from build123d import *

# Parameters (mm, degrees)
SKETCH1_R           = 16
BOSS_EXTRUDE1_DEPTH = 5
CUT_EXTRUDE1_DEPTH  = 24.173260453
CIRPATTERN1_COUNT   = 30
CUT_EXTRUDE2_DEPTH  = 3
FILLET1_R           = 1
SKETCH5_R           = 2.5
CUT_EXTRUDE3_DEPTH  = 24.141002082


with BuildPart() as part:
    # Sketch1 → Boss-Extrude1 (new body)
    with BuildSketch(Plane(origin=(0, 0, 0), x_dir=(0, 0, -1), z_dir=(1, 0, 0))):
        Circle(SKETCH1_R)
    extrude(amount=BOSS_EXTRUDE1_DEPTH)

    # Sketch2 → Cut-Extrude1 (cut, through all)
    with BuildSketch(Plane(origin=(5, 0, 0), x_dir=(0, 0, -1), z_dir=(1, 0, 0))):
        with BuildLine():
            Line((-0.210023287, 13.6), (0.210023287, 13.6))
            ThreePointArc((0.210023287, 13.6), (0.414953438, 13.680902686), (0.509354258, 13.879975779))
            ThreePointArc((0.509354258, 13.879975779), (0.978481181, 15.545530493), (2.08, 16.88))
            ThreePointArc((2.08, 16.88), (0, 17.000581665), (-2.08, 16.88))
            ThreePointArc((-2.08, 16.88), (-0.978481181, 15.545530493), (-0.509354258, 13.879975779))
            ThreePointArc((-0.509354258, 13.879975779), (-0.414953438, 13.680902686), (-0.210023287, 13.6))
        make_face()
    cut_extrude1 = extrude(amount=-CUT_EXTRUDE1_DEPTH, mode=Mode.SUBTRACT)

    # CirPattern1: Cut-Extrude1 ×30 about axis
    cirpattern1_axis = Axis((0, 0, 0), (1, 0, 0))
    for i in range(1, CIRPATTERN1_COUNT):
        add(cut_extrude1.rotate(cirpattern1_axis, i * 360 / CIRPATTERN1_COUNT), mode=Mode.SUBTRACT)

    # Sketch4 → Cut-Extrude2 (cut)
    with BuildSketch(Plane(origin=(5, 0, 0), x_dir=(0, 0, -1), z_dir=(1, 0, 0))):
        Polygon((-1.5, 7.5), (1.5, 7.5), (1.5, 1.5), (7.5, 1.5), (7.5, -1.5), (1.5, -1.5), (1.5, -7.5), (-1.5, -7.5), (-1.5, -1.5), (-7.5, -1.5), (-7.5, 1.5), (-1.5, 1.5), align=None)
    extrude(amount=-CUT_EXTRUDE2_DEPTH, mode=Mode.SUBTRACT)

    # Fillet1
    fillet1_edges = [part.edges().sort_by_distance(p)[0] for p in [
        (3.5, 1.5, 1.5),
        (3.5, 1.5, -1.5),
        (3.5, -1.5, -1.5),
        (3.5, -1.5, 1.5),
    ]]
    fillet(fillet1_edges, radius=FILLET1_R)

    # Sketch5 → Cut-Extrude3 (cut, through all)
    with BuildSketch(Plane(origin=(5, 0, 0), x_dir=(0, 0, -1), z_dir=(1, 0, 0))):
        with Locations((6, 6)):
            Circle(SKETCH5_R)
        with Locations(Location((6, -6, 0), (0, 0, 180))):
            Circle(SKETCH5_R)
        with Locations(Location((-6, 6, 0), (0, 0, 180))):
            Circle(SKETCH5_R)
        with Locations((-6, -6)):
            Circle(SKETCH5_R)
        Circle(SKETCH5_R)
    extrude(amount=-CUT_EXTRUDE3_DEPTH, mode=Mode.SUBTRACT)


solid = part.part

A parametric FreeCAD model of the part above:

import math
import FreeCAD as App
import Part
import Sketcher

V = App.Vector


def edges_at(feature, points):
    """Names of the edges that pass closest to the given points."""
    edges = feature.Shape.Edges
    near = lambda p: min(range(len(edges)), key=lambda i: edges[i].distToShape(Part.Vertex(*p))[0])
    return sorted({f"Edge{near(p) + 1}" for p in points})

doc = App.newDocument("Part")
body = doc.addObject("PartDesign::Body", "Body")

# Sketch on YZ plane
sketch1 = doc.addObject("Sketcher::SketchObject", "Sketch")
body.addObject(sketch1)
sketch1.AttachmentSupport = (doc.YZ_Plane, [""])
sketch1.MapMode = "FlatFace"
sketch1.addGeometry(Part.Circle(V(0, 0, 0), V(0, 0, 1), 16), False)
sketch1.addConstraint(Sketcher.Constraint("Coincident", 0, 3, -1, 1))
sketch1.addConstraint(Sketcher.Constraint("Diameter", 0, 32.0))
pad1 = doc.addObject("PartDesign::Pad", "Pad")
body.addObject(pad1)
pad1.Profile = sketch1
pad1.Length = 5

# Sketch on YZ plane
sketch2 = doc.addObject("Sketcher::SketchObject", "Sketch001")
body.addObject(sketch2)
sketch2.AttachmentSupport = (doc.YZ_Plane, [""])
sketch2.MapMode = "FlatFace"
sketch2.AttachmentOffset = App.Placement(V(0, 0, 5), App.Rotation())
sketch2.addGeometry(Part.LineSegment(V(13.6, 0.210023, 0), V(13.6, -0.210023, 0)), False)
sketch2.addGeometry(Part.ArcOfCircle(Part.Circle(V(13.9, -0.210023, 0), V(0, 0, 1), 0.3), math.radians(180), math.radians(266.17281)), False)
sketch2.addGeometry(Part.ArcOfCircle(Part.Circle(V(13.6, -4.694557, 0), V(0, 0, 1), 4.194557), math.radians(38.559086), math.radians(86.17281)), False)
sketch2.addGeometry(Part.ArcOfCircle(Part.Circle(V(-0.999418, 0, 0), V(0, 0, 1), 18), math.radians(-6.63567), math.radians(6.63567)), False)
sketch2.addGeometry(Part.ArcOfCircle(Part.Circle(V(13.6, 4.694557, 0), V(0, 0, 1), 4.194557), math.radians(-86.17281), math.radians(-38.559086)), False)
sketch2.addGeometry(Part.ArcOfCircle(Part.Circle(V(13.9, 0.210023, 0), V(0, 0, 1), 0.3), math.radians(93.82719), math.radians(180)), False)
sketch2.addConstraint(Sketcher.Constraint("Tangent", 0, 2, 1, 1))
sketch2.addConstraint(Sketcher.Constraint("Tangent", 1, 2, 2, 2))
sketch2.addConstraint(Sketcher.Constraint("Coincident", 2, 1, 3, 1))
sketch2.addConstraint(Sketcher.Constraint("Coincident", 3, 2, 4, 2))
sketch2.addConstraint(Sketcher.Constraint("Tangent", 4, 1, 5, 1))
sketch2.addConstraint(Sketcher.Constraint("Tangent", 5, 2, 0, 1))
sketch2.addConstraint(Sketcher.Constraint("Vertical", 0))
sketch2.addConstraint(Sketcher.Constraint("Equal", 2, 4))
sketch2.addConstraint(Sketcher.Constraint("Equal", 1, 5))
sketch2.addConstraint(Sketcher.Constraint("Symmetric", 2, 3, 4, 3, -1))
sketch2.addConstraint(Sketcher.Constraint("PointOnObject", 3, 3, -1))
sketch2.addConstraint(Sketcher.Constraint("Vertical", 4, 3, 0, 2))
sketch2.addConstraint(Sketcher.Constraint("Radius", 3, 18.0))
sketch2.addConstraint(Sketcher.Constraint("Radius", 1, 0.3))
sketch2.addConstraint(Sketcher.Constraint("DistanceX", -1, 1, 1, 3, 13.9))
sketch2.addConstraint(Sketcher.Constraint("DistanceX", -1, 1, 2, 1, 16.88))
sketch2.addConstraint(Sketcher.Constraint("DistanceY", 2, 1, -1, 1, 2.08))
sketch2.addConstraint(Sketcher.Constraint("Radius", 2, 4.194557))
pocket1 = doc.addObject("PartDesign::Pocket", "Pocket")
body.addObject(pocket1)
pocket1.Profile = sketch2
pocket1.Type = "ThroughAll"
doc.recompute()

polarpattern = doc.addObject("PartDesign::PolarPattern", "PolarPattern")
body.addObject(polarpattern)
polarpattern.Originals = [pocket1]
polarpattern.Axis = (doc.X_Axis, [""])
polarpattern.Angle = 360
polarpattern.Occurrences = 30
body.Tip = polarpattern

# Sketch on YZ plane
sketch3 = doc.addObject("Sketcher::SketchObject", "Sketch002")
body.addObject(sketch3)
sketch3.AttachmentSupport = (doc.YZ_Plane, [""])
sketch3.MapMode = "FlatFace"
sketch3.AttachmentOffset = App.Placement(V(0, 0, 5), App.Rotation())
sketch3.addGeometry(Part.LineSegment(V(7.5, -1.5, 0), V(7.5, 1.5, 0)), False)
sketch3.addGeometry(Part.LineSegment(V(7.5, 1.5, 0), V(1.5, 1.5, 0)), False)
sketch3.addGeometry(Part.LineSegment(V(1.5, 1.5, 0), V(1.5, 7.5, 0)), False)
sketch3.addGeometry(Part.LineSegment(V(1.5, 7.5, 0), V(-1.5, 7.5, 0)), False)
sketch3.addGeometry(Part.LineSegment(V(-1.5, 7.5, 0), V(-1.5, 1.5, 0)), False)
sketch3.addGeometry(Part.LineSegment(V(-1.5, 1.5, 0), V(-7.5, 1.5, 0)), False)
sketch3.addGeometry(Part.LineSegment(V(-7.5, 1.5, 0), V(-7.5, -1.5, 0)), False)
sketch3.addGeometry(Part.LineSegment(V(-7.5, -1.5, 0), V(-1.5, -1.5, 0)), False)
sketch3.addGeometry(Part.LineSegment(V(-1.5, -1.5, 0), V(-1.5, -7.5, 0)), False)
sketch3.addGeometry(Part.LineSegment(V(-1.5, -7.5, 0), V(1.5, -7.5, 0)), False)
sketch3.addGeometry(Part.LineSegment(V(1.5, -7.5, 0), V(1.5, -1.5, 0)), False)
sketch3.addGeometry(Part.LineSegment(V(1.5, -1.5, 0), V(7.5, -1.5, 0)), False)
sketch3.addConstraint(Sketcher.Constraint("Coincident", 0, 2, 1, 1))
sketch3.addConstraint(Sketcher.Constraint("Coincident", 1, 2, 2, 1))
sketch3.addConstraint(Sketcher.Constraint("Coincident", 2, 2, 3, 1))
sketch3.addConstraint(Sketcher.Constraint("Coincident", 3, 2, 4, 1))
sketch3.addConstraint(Sketcher.Constraint("Coincident", 4, 2, 5, 1))
sketch3.addConstraint(Sketcher.Constraint("Coincident", 5, 2, 6, 1))
sketch3.addConstraint(Sketcher.Constraint("Coincident", 6, 2, 7, 1))
sketch3.addConstraint(Sketcher.Constraint("Coincident", 7, 2, 8, 1))
sketch3.addConstraint(Sketcher.Constraint("Coincident", 8, 2, 9, 1))
sketch3.addConstraint(Sketcher.Constraint("Coincident", 9, 2, 10, 1))
sketch3.addConstraint(Sketcher.Constraint("Coincident", 10, 2, 11, 1))
sketch3.addConstraint(Sketcher.Constraint("Coincident", 11, 2, 0, 1))
sketch3.addConstraint(Sketcher.Constraint("Vertical", 0))
sketch3.addConstraint(Sketcher.Constraint("Horizontal", 1))
sketch3.addConstraint(Sketcher.Constraint("Vertical", 2))
sketch3.addConstraint(Sketcher.Constraint("Horizontal", 3))
sketch3.addConstraint(Sketcher.Constraint("Vertical", 4))
sketch3.addConstraint(Sketcher.Constraint("Horizontal", 5))
sketch3.addConstraint(Sketcher.Constraint("Vertical", 6))
sketch3.addConstraint(Sketcher.Constraint("Horizontal", 7))
sketch3.addConstraint(Sketcher.Constraint("Vertical", 8))
sketch3.addConstraint(Sketcher.Constraint("Horizontal", 9))
sketch3.addConstraint(Sketcher.Constraint("Vertical", 10))
sketch3.addConstraint(Sketcher.Constraint("Horizontal", 11))
sketch3.addConstraint(Sketcher.Constraint("Symmetric", 0, 2, 6, 2, -1, 1))
sketch3.addConstraint(Sketcher.Constraint("Symmetric", 2, 2, 8, 2, -1, 1))
sketch3.addConstraint(Sketcher.Constraint("Symmetric", 4, 2, 10, 2, -1, 1))
sketch3.addConstraint(Sketcher.Constraint("Symmetric", 1, 2, 4, 2, -2))
sketch3.addConstraint(Sketcher.Constraint("Equal", 9, 0))
sketch3.addConstraint(Sketcher.Constraint("Equal", 11, 2))
sketch3.addConstraint(Sketcher.Constraint("DistanceX", 1, 2, 1, 1, 6.0))
sketch3.addConstraint(Sketcher.Constraint("DistanceX", 3, 2, 3, 1, 3.0))
pocket2 = doc.addObject("PartDesign::Pocket", "Pocket001")
body.addObject(pocket2)
pocket2.Profile = sketch3
pocket2.Length = 3
doc.recompute()

fillet = doc.addObject("PartDesign::Fillet", "Fillet")
body.addObject(fillet)
fillet.Base = (pocket2, edges_at(pocket2, [
    (3.5, 1.5, 1.5),
    (3.5, 1.5, -1.5),
    (3.5, -1.5, -1.5),
    (3.5, -1.5, 1.5),
]))
fillet.Radius = 1

# Sketch on YZ plane
sketch4 = doc.addObject("Sketcher::SketchObject", "Sketch003")
body.addObject(sketch4)
sketch4.AttachmentSupport = (doc.YZ_Plane, [""])
sketch4.MapMode = "FlatFace"
sketch4.AttachmentOffset = App.Placement(V(0, 0, 5), App.Rotation())
sketch4.addGeometry(Part.Circle(V(6, -6, 0), V(0, 0, 1), 2.5), False)
sketch4.addGeometry(Part.Circle(V(-6, -6, 0), V(0, 0, 1), 2.5), False)
sketch4.addGeometry(Part.Circle(V(6, 6, 0), V(0, 0, 1), 2.5), False)
sketch4.addGeometry(Part.Circle(V(-6, 6, 0), V(0, 0, 1), 2.5), False)
sketch4.addGeometry(Part.Circle(V(0, 0, 0), V(0, 0, 1), 2.5), False)
sketch4.addConstraint(Sketcher.Constraint("Coincident", 4, 3, -1, 1))
sketch4.addConstraint(Sketcher.Constraint("Equal", 0, 1))
sketch4.addConstraint(Sketcher.Constraint("Equal", 1, 2))
sketch4.addConstraint(Sketcher.Constraint("Equal", 2, 3))
sketch4.addConstraint(Sketcher.Constraint("Equal", 3, 4))
sketch4.addConstraint(Sketcher.Constraint("Symmetric", 1, 3, 2, 3, -1, 1))
sketch4.addConstraint(Sketcher.Constraint("Symmetric", 0, 3, 3, 3, -1, 1))
sketch4.addConstraint(Sketcher.Constraint("Symmetric", 0, 3, 1, 3, -2))
sketch4.addConstraint(Sketcher.Constraint("Diameter", 0, 5.0))
sketch4.addConstraint(Sketcher.Constraint("DistanceX", -1, 1, 0, 3, 6.0))
sketch4.addConstraint(Sketcher.Constraint("DistanceY", 0, 3, -1, 1, 6.0))
pocket3 = doc.addObject("PartDesign::Pocket", "Pocket002")
body.addObject(pocket3)
pocket3.Profile = sketch4
pocket3.Type = "ThroughAll"

doc.recompute()
